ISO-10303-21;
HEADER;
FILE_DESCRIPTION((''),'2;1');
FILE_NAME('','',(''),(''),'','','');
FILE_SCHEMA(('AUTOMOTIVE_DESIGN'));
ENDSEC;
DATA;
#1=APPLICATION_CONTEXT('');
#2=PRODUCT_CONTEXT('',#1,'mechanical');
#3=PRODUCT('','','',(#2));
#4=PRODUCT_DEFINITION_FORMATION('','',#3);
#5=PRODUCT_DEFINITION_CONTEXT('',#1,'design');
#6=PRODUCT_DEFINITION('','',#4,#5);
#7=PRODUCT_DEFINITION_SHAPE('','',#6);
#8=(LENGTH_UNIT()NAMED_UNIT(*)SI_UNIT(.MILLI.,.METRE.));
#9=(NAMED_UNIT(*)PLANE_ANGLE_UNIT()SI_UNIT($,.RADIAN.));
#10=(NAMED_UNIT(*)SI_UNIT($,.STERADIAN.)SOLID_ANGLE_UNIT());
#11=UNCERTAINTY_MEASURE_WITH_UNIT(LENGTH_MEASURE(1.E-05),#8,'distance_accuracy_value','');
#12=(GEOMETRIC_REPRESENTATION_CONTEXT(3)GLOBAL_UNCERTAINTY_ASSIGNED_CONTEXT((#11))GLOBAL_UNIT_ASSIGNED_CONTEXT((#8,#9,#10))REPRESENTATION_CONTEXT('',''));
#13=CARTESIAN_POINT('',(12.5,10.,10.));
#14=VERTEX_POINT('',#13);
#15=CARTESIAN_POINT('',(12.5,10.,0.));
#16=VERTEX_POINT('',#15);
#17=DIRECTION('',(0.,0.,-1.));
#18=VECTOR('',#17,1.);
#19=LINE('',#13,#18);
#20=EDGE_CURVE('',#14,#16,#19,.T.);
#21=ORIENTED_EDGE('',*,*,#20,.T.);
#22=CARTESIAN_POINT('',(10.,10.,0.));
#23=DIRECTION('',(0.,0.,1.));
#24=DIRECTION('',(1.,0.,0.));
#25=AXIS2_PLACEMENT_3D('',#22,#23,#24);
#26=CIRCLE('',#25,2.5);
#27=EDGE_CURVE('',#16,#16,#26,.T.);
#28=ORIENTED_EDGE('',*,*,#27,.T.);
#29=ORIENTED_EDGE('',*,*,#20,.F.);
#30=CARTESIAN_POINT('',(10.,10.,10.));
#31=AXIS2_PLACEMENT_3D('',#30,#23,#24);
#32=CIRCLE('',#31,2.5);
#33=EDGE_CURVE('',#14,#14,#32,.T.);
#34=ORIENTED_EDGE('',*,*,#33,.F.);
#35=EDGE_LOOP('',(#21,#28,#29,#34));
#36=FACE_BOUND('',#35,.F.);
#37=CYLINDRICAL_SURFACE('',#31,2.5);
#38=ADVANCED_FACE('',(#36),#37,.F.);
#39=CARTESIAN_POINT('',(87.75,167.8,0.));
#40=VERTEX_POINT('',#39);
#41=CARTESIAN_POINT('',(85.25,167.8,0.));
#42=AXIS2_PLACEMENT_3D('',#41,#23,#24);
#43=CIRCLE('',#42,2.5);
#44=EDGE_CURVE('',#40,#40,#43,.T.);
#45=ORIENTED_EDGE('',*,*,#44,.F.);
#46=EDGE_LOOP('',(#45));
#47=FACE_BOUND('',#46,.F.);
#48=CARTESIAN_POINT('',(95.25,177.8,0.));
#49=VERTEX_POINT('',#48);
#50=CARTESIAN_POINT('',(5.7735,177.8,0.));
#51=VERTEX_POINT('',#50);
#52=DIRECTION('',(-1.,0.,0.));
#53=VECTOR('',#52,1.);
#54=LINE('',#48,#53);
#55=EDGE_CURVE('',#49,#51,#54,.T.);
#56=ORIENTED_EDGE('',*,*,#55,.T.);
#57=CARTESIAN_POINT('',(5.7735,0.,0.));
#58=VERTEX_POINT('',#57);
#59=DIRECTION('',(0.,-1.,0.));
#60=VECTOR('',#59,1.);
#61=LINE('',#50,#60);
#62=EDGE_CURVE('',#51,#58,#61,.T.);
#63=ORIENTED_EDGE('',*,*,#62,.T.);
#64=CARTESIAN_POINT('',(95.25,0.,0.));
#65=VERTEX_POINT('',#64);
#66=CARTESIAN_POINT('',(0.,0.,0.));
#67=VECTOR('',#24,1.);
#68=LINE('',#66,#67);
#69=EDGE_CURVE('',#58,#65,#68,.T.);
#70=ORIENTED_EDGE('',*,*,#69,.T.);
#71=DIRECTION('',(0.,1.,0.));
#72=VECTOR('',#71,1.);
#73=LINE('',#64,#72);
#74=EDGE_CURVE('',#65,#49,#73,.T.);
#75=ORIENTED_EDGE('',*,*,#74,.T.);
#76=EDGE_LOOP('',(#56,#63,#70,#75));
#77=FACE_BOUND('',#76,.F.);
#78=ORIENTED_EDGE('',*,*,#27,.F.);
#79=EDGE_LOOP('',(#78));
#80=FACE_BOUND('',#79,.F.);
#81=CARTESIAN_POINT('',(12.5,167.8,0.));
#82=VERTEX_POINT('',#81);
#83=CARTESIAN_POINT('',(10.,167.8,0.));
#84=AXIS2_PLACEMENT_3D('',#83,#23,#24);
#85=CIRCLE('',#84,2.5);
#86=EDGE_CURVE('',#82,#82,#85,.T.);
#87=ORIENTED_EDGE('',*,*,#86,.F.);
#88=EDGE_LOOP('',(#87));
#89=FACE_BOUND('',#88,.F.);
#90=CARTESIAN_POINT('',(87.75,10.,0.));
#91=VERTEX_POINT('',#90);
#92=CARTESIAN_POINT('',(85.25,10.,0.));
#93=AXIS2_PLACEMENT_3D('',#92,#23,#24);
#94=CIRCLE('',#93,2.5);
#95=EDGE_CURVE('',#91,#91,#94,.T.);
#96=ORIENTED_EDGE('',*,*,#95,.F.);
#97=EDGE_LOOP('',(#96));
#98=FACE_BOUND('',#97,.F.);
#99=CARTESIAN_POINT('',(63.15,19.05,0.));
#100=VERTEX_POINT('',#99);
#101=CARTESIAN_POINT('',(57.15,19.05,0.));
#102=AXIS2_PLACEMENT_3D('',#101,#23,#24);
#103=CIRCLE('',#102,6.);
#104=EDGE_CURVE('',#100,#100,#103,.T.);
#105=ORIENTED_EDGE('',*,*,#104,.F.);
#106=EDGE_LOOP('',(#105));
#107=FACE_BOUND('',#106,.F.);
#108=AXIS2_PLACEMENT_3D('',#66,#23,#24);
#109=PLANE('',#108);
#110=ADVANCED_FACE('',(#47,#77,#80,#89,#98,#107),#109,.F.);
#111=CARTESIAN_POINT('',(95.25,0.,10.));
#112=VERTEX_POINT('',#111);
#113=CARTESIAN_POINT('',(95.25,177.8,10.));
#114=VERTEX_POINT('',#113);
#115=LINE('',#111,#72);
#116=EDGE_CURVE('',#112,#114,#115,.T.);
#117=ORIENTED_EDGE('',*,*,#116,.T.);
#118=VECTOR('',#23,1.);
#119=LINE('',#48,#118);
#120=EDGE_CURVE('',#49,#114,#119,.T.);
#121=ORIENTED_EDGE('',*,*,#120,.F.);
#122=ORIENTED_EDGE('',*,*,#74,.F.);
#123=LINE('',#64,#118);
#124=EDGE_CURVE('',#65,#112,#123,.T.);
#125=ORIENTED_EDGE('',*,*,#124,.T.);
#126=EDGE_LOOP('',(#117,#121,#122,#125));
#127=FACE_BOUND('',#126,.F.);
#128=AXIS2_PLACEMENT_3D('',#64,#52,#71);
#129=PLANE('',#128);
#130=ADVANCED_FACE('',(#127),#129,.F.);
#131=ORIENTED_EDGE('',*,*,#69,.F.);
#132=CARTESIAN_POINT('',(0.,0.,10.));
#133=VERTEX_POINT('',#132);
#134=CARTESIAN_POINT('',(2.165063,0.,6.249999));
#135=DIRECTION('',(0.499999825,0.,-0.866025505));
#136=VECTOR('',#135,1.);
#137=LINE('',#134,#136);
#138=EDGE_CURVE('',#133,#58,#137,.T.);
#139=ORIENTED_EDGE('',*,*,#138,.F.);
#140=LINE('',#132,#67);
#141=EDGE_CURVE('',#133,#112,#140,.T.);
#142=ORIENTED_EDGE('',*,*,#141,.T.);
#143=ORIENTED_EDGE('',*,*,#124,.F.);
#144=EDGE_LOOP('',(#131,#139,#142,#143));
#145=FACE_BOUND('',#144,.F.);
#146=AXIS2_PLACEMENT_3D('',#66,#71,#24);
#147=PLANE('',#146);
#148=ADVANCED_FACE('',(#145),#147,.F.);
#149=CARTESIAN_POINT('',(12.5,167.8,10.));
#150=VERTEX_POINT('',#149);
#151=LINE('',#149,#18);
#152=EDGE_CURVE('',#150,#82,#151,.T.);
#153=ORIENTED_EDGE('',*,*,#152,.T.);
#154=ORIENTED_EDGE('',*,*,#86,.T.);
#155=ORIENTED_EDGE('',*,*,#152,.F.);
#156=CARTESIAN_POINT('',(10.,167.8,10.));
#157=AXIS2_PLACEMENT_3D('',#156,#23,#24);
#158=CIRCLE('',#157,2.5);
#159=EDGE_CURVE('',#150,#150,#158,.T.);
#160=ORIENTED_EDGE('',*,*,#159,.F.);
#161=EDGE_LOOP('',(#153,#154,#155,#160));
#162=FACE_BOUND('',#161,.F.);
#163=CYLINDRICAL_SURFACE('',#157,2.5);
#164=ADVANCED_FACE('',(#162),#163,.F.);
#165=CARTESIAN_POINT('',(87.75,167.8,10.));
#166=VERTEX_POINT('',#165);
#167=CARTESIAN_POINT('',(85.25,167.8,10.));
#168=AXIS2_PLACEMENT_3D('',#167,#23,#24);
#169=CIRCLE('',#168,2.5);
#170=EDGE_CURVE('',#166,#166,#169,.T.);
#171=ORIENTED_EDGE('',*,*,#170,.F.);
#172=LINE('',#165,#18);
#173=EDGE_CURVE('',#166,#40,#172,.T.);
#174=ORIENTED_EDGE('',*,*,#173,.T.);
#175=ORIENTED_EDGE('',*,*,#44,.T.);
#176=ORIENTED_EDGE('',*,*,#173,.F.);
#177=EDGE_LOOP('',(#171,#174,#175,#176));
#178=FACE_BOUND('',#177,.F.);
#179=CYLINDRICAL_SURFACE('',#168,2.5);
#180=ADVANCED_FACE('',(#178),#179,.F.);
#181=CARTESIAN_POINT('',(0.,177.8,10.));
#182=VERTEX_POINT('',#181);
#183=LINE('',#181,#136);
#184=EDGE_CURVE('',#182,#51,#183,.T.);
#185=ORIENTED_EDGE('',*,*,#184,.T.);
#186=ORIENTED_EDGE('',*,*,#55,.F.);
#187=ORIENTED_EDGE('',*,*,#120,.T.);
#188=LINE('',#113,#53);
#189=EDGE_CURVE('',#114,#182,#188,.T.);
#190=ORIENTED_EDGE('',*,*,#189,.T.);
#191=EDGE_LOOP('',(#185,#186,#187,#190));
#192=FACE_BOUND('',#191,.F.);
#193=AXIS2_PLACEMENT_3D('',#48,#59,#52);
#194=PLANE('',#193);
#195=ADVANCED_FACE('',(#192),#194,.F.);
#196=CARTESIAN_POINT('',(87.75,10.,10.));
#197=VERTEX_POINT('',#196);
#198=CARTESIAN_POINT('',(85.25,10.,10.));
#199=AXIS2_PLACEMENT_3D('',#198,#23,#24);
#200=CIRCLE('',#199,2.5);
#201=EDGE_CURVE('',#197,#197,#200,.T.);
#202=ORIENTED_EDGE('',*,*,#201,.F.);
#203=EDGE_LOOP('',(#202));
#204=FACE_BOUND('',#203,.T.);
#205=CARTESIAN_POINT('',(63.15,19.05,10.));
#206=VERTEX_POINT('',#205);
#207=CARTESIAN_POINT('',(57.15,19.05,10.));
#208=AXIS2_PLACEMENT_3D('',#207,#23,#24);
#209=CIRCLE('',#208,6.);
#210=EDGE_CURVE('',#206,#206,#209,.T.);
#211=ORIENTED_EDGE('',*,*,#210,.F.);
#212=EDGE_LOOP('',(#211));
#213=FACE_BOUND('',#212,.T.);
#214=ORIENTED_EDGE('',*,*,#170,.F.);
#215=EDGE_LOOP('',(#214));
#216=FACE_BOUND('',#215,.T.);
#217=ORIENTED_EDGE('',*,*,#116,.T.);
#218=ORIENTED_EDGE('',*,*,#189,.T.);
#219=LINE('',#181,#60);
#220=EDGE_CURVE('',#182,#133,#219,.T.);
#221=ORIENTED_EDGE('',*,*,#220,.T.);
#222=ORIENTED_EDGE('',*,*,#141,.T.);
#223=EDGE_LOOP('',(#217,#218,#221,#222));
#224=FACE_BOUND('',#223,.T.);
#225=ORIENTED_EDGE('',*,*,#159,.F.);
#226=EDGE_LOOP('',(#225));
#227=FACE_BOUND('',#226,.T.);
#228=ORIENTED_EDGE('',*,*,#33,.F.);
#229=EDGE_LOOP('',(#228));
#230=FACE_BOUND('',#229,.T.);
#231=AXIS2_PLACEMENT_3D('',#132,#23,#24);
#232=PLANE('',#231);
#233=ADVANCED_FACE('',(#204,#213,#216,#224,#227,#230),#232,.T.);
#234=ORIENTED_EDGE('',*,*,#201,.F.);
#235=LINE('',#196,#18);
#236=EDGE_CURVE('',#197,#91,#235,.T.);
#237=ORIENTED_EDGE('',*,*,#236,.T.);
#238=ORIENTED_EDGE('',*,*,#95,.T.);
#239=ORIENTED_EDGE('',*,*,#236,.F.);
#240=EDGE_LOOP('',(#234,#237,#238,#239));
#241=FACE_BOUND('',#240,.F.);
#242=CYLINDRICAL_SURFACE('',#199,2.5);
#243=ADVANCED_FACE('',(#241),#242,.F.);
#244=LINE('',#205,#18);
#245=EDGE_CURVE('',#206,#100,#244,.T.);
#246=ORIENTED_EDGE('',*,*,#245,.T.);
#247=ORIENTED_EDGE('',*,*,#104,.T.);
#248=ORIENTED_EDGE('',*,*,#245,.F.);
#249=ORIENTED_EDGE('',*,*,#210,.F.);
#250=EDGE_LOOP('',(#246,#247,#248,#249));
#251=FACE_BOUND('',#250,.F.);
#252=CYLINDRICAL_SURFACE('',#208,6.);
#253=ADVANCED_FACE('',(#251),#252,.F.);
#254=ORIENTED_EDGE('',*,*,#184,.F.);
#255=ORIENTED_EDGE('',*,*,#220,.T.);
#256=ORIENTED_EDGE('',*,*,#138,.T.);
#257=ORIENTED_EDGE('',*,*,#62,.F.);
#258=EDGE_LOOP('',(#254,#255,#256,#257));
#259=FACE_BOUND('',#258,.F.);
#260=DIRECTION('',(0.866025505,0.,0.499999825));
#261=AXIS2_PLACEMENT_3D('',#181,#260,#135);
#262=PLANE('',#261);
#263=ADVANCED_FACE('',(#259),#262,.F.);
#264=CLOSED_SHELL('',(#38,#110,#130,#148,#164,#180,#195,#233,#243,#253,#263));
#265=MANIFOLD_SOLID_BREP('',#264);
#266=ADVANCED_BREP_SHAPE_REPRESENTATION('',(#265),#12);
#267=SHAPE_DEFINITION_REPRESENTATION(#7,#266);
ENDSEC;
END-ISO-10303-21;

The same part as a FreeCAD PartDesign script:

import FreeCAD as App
import Part
import Sketcher

V = App.Vector
Q = App.Units.Quantity

doc = App.newDocument("Part")
body = doc.addObject("PartDesign::Body", "Body")

sketch1 = body.newObject("Sketcher::SketchObject", "Sketch")
sketch1.AttachmentSupport = (doc.getObject("XY_Plane"), [""])
sketch1.MapMode = "FlatFace"
sketch1.addGeometry(Part.LineSegment(V(0, 177.8, 0), V(0, 0, 0)), False)
sketch1.addGeometry(Part.LineSegment(V(0, 0, 0), V(95.25, 0, 0)), False)
sketch1.addGeometry(Part.LineSegment(V(95.25, 0, 0), V(95.25, 177.8, 0)), False)
sketch1.addGeometry(Part.LineSegment(V(95.25, 177.8, 0), V(0, 177.8, 0)), False)
sketch1.addConstraint(Sketcher.Constraint("Coincident", 0, 2, 1, 1))
sketch1.addConstraint(Sketcher.Constraint("Coincident", 1, 2, 2, 1))
sketch1.addConstraint(Sketcher.Constraint("Coincident", 2, 2, 3, 1))
sketch1.addConstraint(Sketcher.Constraint("Coincident", 3, 2, 0, 1))
sketch1.addConstraint(Sketcher.Constraint("Vertical", 0))
sketch1.addConstraint(Sketcher.Constraint("Horizontal", 1))
sketch1.addConstraint(Sketcher.Constraint("Vertical", 2))
sketch1.addConstraint(Sketcher.Constraint("Horizontal", 3))
sketch1.addConstraint(Sketcher.Constraint("Coincident", 0, 2, -1, 1))
sketch1.addConstraint(Sketcher.Constraint("DistanceY", 0, 2, 0, 1, Q("177.8 mm")))
sketch1.addConstraint(Sketcher.Constraint("DistanceX", 1, 1, 1, 2, Q("95.25 mm")))
pad1 = body.newObject("PartDesign::Pad", "Pad")
pad1.Profile = sketch1
pad1.Length = 10

sketch2 = body.newObject("Sketcher::SketchObject", "Sketch001")
sketch2.AttachmentSupport = (doc.getObject("XZ_Plane"), [""])
sketch2.MapMode = "FlatFace"
sketch2.AttachmentOffset = App.Placement(V(0, 0, -177.8), App.Rotation())
sketch2.addGeometry(Part.LineSegment(V(0, 0, 0), V(0, 10, 0)), False)
sketch2.addGeometry(Part.LineSegment(V(0, 10, 0), V(5.7735, 0, 0)), False)
sketch2.addGeometry(Part.LineSegment(V(5.7735, 0, 0), V(0, 0, 0)), False)
sketch2.addConstraint(Sketcher.Constraint("Coincident", 0, 2, 1, 1))
sketch2.addConstraint(Sketcher.Constraint("Coincident", 1, 2, 2, 1))
sketch2.addConstraint(Sketcher.Constraint("Coincident", 2, 2, 0, 1))
sketch2.addConstraint(Sketcher.Constraint("Vertical", 0))
sketch2.addConstraint(Sketcher.Constraint("Horizontal", 2))
sketch2.addConstraint(Sketcher.Constraint("Coincident", 2, 2, -1, 1))
sketch2.addConstraint(Sketcher.Constraint("DistanceY", 0, 1, 0, 2, Q("10 mm")))
sketch2.addConstraint(Sketcher.Constraint("Angle", 1, Q("-60 deg")))
pocket1 = body.newObject("PartDesign::Pocket", "Pocket")
pocket1.Profile = sketch2
pocket1.Type = "ThroughAll"
pocket1.Reversed = True

sketch3 = body.newObject("Sketcher::SketchObject", "Sketch002")
sketch3.AttachmentSupport = (doc.getObject("XY_Plane"), [""])
sketch3.MapMode = "FlatFace"
sketch3.AttachmentOffset = App.Placement(V(0, 0, 10), App.Rotation())
sketch3.addGeometry(Part.Circle(V(10, 167.8, 0), V(0, 0, 1), 2.5), False)
sketch3.addGeometry(Part.Circle(V(85.25, 167.8, 0), V(0, 0, 1), 2.5), False)
sketch3.addGeometry(Part.Circle(V(85.25, 10, 0), V(0, 0, 1), 2.5), False)
sketch3.addGeometry(Part.Circle(V(10, 10, 0), V(0, 0, 1), 2.5), False)
sketch3.addConstraint(Sketcher.Constraint("Equal", 0, 1))
sketch3.addConstraint(Sketcher.Constraint("Equal", 1, 2))
sketch3.addConstraint(Sketcher.Constraint("Equal", 2, 3))
sketch3.addConstraint(Sketcher.Constraint("Horizontal", 0, 3, 1, 3))
sketch3.addConstraint(Sketcher.Constraint("Horizontal", 2, 3, 3, 3))
sketch3.addConstraint(Sketcher.Constraint("Vertical", 1, 3, 2, 3))
sketch3.addConstraint(Sketcher.Constraint("Vertical", 0, 3, 3, 3))
sketch3.addConstraint(Sketcher.Constraint("Diameter", 0, Q("5 mm")))
sketch3.addConstraint(Sketcher.Constraint("DistanceX", -1, 1, 0, 3, Q("10 mm")))
sketch3.addConstraint(Sketcher.Constraint("DistanceY", -1, 1, 2, 3, Q("10 mm")))
sketch3.addConstraint(Sketcher.Constraint("DistanceY", -1, 1, 0, 3, Q("167.8 mm")))
sketch3.addConstraint(Sketcher.Constraint("DistanceX", -1, 1, 1, 3, Q("85.25 mm")))
pocket2 = body.newObject("PartDesign::Pocket", "Pocket001")
pocket2.Profile = sketch3
pocket2.Type = "ThroughAll"

sketch4 = body.newObject("Sketcher::SketchObject", "Sketch003")
sketch4.AttachmentSupport = (doc.getObject("XY_Plane"), [""])
sketch4.MapMode = "FlatFace"
sketch4.AttachmentOffset = App.Placement(V(0, 0, 10), App.Rotation())
sketch4.addGeometry(Part.Circle(V(57.15, 19.05, 0), V(0, 0, 1), 6), False)
sketch4.addConstraint(Sketcher.Constraint("Diameter", 0, Q("12 mm")))
sketch4.addConstraint(Sketcher.Constraint("DistanceY", -1, 1, 0, 3, Q("19.05 mm")))
sketch4.addConstraint(Sketcher.Constraint("DistanceX", -1, 1, 0, 3, Q("57.15 mm")))
pocket3 = body.newObject("PartDesign::Pocket", "Pocket002")
pocket3.Profile = sketch4
pocket3.Type = "ThroughAll"

doc.recompute()
